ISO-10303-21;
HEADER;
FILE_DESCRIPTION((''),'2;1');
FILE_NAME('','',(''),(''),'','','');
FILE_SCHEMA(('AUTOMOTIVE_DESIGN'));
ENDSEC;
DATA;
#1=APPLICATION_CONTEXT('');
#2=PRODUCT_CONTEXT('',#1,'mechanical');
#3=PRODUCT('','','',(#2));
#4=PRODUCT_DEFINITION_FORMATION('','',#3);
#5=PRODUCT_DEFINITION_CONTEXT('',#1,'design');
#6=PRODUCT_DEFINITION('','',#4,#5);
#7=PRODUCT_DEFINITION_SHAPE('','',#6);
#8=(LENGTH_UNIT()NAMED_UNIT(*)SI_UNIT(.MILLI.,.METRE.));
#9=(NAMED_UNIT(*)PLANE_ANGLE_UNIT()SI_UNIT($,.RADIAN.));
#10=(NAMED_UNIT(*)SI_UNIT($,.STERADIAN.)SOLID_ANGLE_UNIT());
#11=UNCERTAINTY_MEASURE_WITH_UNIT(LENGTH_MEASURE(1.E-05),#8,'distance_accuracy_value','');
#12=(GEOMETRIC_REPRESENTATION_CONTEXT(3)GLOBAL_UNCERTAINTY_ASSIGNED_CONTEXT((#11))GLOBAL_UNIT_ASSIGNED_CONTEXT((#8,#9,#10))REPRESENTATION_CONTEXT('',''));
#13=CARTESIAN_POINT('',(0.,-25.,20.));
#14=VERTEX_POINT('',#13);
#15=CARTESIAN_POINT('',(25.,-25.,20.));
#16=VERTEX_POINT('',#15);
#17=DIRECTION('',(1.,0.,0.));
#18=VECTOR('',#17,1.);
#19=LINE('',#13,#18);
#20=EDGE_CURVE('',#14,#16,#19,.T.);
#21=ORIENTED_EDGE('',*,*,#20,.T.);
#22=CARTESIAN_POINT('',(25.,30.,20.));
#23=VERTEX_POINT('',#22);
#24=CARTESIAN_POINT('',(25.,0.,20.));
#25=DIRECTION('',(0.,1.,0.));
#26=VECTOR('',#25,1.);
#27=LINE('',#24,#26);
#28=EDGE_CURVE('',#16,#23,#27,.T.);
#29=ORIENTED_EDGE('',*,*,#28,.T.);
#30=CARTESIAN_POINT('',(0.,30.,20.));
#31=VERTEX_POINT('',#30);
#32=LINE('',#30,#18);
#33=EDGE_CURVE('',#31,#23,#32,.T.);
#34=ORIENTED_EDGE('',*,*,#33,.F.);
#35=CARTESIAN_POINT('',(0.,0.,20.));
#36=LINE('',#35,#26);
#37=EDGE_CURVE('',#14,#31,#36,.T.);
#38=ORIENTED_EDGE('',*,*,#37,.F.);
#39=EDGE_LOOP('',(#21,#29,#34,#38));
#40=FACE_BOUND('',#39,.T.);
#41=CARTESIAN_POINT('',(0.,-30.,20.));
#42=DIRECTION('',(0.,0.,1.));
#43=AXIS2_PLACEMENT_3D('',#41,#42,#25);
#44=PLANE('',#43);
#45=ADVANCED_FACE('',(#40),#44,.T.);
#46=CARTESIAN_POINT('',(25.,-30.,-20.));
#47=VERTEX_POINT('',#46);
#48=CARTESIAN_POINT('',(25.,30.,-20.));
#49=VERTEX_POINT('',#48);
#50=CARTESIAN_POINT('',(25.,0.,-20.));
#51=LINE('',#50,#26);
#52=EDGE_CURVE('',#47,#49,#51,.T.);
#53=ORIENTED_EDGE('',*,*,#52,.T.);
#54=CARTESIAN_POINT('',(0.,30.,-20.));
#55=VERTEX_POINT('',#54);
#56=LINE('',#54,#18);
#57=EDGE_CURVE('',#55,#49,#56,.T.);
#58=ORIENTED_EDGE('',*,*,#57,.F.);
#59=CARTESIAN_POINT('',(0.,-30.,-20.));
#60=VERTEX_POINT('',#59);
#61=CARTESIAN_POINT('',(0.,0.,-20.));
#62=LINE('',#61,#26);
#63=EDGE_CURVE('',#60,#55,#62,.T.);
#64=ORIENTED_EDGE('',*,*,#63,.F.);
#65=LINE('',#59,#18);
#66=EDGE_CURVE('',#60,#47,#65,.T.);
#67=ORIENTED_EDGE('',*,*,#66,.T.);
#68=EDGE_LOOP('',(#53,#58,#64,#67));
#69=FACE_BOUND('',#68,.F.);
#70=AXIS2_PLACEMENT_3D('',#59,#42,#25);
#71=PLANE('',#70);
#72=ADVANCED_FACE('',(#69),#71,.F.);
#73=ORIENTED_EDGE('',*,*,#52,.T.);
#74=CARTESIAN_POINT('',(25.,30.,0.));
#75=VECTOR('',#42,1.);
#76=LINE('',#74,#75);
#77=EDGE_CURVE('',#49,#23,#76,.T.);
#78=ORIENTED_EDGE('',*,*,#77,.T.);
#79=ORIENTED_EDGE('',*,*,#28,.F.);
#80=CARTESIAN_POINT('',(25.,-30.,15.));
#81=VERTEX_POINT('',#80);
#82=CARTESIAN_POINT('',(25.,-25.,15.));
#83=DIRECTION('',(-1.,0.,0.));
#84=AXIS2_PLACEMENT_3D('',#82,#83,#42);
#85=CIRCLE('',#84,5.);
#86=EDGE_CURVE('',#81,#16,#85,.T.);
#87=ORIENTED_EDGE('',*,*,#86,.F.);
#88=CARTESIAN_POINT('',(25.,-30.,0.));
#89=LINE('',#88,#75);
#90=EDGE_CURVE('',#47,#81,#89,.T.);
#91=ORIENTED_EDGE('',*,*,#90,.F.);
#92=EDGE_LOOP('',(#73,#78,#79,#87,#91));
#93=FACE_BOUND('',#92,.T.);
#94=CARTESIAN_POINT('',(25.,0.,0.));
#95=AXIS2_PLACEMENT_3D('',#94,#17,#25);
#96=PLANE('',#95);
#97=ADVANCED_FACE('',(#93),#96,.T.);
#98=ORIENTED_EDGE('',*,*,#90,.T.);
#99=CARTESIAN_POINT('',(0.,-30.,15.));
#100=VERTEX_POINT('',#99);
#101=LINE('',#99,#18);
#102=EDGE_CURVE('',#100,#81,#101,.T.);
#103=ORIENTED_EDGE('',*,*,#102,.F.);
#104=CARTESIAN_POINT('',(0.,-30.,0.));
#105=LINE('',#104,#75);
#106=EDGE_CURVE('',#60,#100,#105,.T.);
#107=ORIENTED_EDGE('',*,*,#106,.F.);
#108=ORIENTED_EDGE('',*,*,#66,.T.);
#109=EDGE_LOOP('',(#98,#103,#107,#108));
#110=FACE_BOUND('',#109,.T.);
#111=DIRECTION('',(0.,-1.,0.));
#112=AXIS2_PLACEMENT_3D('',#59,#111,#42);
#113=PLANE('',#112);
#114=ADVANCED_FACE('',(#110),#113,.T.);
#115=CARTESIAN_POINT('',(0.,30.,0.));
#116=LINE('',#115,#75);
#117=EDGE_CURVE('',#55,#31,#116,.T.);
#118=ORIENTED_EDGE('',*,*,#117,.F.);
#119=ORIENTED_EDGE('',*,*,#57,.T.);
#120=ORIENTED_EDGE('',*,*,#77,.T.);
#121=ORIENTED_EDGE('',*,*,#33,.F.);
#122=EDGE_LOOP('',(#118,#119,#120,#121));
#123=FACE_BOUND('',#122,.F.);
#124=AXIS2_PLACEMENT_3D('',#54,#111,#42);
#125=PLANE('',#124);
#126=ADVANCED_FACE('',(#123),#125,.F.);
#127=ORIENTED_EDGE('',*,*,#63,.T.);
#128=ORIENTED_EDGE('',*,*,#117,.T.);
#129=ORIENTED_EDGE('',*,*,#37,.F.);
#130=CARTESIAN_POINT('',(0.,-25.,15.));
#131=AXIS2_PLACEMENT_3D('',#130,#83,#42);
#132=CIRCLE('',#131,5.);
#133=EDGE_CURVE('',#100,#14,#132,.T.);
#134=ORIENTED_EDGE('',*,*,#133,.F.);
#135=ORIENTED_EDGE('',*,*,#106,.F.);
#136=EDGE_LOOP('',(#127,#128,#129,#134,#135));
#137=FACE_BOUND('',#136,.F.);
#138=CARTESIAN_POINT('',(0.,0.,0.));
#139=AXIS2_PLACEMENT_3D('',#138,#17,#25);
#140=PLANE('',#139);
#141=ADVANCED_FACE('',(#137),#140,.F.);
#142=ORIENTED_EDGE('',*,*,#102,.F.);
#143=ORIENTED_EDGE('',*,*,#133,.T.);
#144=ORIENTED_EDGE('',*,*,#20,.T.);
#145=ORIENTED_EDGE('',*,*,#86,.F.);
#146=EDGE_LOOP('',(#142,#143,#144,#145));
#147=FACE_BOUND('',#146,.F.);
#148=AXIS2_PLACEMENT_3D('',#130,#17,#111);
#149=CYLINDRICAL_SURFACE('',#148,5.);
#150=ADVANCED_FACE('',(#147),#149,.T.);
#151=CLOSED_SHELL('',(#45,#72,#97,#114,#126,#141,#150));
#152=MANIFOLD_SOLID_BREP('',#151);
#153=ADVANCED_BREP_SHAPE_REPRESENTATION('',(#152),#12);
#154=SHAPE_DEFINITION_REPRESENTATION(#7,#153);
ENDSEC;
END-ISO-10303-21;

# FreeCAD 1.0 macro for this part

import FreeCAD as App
import Part
import Sketcher

V = App.Vector


def edges_at(feature, points):
    """Names of the edges that pass closest to the given points."""
    edges = feature.Shape.Edges
    near = lambda p: min(range(len(edges)), key=lambda i: edges[i].distToShape(Part.Vertex(*p))[0])
    return sorted({f"Edge{near(p) + 1}" for p in points})

doc = App.newDocument("Part")
body = doc.addObject("PartDesign::Body", "Body")

sketch1 = doc.addObject("Sketcher::SketchObject", "Sketch")
body.addObject(sketch1)
sketch1.AttachmentSupport = (doc.YZ_Plane, [""])
sketch1.MapMode = "FlatFace"
sketch1.addGeometry([
    Part.LineSegment(V(-30, 20, 0), V(-30, -20, 0)),
    Part.LineSegment(V(-30, -20, 0), V(30, -20, 0)),
    Part.LineSegment(V(30, -20, 0), V(30, 20, 0)),
    Part.LineSegment(V(30, 20, 0), V(-30, 20, 0)),
], False)
sketch1.addConstraint([
    Sketcher.Constraint("Coincident", 0, 2, 1, 1),
    Sketcher.Constraint("Coincident", 1, 2, 2, 1),
    Sketcher.Constraint("Coincident", 2, 2, 3, 1),
    Sketcher.Constraint("Coincident", 3, 2, 0, 1),
    Sketcher.Constraint("Vertical", 0),
    Sketcher.Constraint("Horizontal", 1),
    Sketcher.Constraint("Vertical", 2),
    Sketcher.Constraint("Horizontal", 3),
    Sketcher.Constraint("Symmetric", 0, 2, 2, 2, -1, 1),
    Sketcher.Constraint("DistanceX", 1, 1, 1, 2, 60.0),
    Sketcher.Constraint("DistanceY", 0, 2, 0, 1, 40.0),
])
pad1 = doc.addObject("PartDesign::Pad", "Pad")
body.addObject(pad1)
pad1.Profile = sketch1
pad1.Length = 25
doc.recompute()

fillet = doc.addObject("PartDesign::Fillet", "Fillet")
body.addObject(fillet)
fillet.Base = (pad1, edges_at(pad1, [(12.5, -30, 20)]))
fillet.Radius = 5

doc.recompute()
